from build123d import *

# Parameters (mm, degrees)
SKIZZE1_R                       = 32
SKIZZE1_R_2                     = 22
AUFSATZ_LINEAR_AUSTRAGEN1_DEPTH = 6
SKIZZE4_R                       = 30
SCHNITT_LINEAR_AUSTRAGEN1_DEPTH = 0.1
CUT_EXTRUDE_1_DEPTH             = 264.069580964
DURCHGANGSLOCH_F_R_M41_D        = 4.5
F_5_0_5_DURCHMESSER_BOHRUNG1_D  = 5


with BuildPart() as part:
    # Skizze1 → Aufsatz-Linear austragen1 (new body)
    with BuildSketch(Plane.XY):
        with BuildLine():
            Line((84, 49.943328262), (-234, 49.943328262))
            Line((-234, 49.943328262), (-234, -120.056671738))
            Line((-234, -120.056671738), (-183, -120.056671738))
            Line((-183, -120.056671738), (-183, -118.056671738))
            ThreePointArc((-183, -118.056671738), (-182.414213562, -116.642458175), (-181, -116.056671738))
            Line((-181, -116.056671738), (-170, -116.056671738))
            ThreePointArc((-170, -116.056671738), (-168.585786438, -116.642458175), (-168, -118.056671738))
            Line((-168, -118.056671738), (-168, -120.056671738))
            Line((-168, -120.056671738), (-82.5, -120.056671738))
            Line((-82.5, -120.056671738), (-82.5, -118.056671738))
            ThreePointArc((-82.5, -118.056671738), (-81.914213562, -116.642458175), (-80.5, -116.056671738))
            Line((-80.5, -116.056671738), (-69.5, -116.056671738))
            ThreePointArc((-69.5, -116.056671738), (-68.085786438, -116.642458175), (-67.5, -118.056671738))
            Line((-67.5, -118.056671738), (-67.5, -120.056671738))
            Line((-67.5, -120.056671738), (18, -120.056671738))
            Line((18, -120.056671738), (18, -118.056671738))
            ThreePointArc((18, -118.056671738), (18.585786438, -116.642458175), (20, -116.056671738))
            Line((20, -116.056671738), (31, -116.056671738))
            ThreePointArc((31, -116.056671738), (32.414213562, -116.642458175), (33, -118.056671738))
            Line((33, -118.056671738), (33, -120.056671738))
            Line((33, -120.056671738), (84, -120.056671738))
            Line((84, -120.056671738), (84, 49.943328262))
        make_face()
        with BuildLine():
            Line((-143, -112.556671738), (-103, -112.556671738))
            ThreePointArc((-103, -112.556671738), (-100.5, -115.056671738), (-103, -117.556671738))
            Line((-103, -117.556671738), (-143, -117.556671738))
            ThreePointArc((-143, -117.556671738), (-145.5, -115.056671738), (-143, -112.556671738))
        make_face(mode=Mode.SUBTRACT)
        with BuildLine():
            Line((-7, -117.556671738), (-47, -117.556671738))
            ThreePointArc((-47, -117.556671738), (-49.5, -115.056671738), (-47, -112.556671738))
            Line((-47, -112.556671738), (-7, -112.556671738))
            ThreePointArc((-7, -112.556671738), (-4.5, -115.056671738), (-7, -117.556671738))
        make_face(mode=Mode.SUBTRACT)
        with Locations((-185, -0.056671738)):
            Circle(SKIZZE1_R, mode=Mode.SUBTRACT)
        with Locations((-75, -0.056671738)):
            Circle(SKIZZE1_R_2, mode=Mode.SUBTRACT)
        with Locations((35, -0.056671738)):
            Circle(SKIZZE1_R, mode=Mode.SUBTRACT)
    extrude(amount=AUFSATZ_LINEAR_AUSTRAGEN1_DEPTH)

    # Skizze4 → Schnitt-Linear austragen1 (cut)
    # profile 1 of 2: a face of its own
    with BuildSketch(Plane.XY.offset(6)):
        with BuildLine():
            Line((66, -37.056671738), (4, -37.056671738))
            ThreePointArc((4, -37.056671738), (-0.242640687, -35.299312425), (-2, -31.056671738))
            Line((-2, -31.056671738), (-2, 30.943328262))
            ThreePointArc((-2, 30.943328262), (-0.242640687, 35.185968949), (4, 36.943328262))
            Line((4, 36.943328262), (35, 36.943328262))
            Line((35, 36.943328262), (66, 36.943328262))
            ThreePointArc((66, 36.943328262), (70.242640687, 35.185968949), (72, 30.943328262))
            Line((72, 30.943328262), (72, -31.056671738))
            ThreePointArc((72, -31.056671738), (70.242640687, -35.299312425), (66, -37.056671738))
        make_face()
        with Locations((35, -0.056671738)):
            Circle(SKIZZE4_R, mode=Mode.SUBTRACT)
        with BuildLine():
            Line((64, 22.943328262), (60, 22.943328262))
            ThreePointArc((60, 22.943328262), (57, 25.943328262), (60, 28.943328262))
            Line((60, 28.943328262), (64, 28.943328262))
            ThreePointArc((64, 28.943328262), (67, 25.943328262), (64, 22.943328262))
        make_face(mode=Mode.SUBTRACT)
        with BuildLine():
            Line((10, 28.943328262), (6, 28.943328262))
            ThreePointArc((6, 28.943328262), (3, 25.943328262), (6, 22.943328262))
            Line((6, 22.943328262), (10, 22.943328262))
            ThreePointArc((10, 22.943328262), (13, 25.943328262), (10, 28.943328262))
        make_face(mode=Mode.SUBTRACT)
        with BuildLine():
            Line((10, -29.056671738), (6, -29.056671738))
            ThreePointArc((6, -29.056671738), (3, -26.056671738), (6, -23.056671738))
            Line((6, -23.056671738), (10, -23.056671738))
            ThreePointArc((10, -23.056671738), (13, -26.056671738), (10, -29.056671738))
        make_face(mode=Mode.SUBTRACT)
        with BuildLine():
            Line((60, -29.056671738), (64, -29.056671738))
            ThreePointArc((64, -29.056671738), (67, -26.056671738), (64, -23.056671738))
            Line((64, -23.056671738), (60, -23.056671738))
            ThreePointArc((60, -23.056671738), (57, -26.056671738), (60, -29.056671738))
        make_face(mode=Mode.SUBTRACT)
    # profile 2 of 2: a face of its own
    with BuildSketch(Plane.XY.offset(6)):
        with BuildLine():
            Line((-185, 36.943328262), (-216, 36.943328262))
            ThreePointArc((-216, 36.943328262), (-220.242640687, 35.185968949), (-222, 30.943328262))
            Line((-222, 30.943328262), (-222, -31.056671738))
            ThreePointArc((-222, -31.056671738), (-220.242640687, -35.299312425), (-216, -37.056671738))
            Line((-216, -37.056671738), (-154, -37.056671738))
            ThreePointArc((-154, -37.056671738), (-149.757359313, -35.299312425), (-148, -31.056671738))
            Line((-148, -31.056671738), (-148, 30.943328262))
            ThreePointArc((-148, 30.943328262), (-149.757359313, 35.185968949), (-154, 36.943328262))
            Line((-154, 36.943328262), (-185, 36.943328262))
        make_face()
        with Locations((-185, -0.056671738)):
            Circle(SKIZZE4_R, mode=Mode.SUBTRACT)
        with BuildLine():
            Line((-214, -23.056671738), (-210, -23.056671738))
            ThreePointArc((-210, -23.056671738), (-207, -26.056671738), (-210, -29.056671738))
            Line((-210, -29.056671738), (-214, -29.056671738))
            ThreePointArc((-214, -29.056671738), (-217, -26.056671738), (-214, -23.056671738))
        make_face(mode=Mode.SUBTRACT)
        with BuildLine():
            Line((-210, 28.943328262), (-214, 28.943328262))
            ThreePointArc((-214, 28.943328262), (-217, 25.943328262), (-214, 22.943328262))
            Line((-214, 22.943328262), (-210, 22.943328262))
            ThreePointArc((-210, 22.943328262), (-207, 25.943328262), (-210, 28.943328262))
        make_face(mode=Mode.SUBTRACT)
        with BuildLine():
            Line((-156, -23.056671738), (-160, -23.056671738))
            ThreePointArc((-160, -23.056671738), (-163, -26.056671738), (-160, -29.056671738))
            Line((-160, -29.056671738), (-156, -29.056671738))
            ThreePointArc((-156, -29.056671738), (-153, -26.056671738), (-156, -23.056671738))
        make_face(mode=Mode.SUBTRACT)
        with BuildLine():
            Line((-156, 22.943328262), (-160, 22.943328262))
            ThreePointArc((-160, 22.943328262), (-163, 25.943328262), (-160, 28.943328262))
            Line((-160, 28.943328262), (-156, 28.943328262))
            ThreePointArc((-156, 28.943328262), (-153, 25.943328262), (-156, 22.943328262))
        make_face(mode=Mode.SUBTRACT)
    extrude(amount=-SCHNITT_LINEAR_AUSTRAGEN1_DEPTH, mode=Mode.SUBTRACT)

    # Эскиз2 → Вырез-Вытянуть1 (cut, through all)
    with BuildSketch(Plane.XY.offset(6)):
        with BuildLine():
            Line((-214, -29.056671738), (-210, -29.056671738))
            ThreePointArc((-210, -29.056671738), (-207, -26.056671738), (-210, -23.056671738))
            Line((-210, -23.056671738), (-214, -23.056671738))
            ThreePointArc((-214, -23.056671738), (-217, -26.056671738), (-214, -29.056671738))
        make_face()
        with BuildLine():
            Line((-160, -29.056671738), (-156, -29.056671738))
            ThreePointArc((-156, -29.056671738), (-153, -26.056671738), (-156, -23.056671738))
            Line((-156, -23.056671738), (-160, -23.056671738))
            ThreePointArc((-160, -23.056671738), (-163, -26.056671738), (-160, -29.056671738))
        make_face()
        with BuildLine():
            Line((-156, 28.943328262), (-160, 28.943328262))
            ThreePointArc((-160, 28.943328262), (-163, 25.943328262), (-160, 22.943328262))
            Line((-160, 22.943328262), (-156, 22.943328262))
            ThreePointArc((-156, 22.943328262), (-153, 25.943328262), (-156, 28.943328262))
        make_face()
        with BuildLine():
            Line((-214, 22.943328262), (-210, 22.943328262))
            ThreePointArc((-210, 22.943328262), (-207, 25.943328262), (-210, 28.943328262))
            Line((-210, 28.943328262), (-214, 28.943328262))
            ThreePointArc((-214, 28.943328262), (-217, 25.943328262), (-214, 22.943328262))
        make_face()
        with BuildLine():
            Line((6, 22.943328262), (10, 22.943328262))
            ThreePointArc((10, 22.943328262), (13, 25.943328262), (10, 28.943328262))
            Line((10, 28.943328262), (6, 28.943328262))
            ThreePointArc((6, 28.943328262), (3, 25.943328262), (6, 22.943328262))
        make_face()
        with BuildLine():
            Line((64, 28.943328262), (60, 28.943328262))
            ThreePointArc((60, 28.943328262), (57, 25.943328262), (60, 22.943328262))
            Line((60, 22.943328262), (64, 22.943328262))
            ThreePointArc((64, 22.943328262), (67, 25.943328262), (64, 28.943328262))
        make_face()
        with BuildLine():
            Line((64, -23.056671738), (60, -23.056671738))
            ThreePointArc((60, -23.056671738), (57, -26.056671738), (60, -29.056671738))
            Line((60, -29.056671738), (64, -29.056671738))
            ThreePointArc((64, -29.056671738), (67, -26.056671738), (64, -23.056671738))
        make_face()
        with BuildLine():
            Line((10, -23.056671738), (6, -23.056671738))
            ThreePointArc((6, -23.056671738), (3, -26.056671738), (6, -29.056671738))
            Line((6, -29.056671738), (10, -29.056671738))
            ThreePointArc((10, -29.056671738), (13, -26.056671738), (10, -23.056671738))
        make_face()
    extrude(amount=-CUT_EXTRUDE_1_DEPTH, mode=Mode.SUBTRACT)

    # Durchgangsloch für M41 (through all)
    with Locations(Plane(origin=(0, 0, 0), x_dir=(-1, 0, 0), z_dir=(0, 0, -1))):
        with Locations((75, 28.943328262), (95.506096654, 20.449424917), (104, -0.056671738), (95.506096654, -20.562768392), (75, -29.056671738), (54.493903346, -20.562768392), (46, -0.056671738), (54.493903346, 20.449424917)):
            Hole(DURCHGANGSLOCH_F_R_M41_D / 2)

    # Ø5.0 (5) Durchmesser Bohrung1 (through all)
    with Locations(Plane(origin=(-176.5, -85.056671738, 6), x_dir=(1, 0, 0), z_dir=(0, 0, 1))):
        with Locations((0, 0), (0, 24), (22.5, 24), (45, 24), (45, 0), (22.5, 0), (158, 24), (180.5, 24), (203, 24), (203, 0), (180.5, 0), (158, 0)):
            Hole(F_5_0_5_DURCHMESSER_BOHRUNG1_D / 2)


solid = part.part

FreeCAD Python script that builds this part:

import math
import FreeCAD as App
import Part
import Sketcher
Q = App.Units.Quantity

doc = App.newDocument("Part")
body = doc.addObject("PartDesign::Body", "Body")

# Sketch on XY plane
sketch1 = body.newObject("Sketcher::SketchObject", "Sketch")
sketch1.AttachmentSupport = (doc.getObject("XY_Plane"), [""])
sketch1.MapMode = "FlatFace"
sketch1.addGeometry([
    Part.LineSegment(App.Vector(84, 49.9, 0), App.Vector(-234, 49.9, 0)),  # 0
    Part.LineSegment(App.Vector(-234, 49.9, 0), App.Vector(-234, -120.1, 0)),  # 1
    Part.LineSegment(App.Vector(-234, -120.1, 0), App.Vector(-183, -120.1, 0)),  # 2
    Part.LineSegment(App.Vector(-183, -120.1, 0), App.Vector(-183, -118.1, 0)),  # 3
    Part.ArcOfCircle(Part.Circle(App.Vector(-181, -118.1, 0), App.Vector(0, 0, 1), 2), math.radians(90), math.radians(180)),  # 4
    Part.LineSegment(App.Vector(-181, -116.1, 0), App.Vector(-170, -116.1, 0)),  # 5
    Part.ArcOfCircle(Part.Circle(App.Vector(-170, -118.1, 0), App.Vector(0, 0, 1), 2), math.radians(0), math.radians(90)),  # 6
    Part.LineSegment(App.Vector(-168, -118.1, 0), App.Vector(-168, -120.1, 0)),  # 7
    Part.LineSegment(App.Vector(-168, -120.1, 0), App.Vector(-82.5, -120.1, 0)),  # 8
    Part.LineSegment(App.Vector(-82.5, -120.1, 0), App.Vector(-82.5, -118.1, 0)),  # 9
    Part.ArcOfCircle(Part.Circle(App.Vector(-80.5, -118.1, 0), App.Vector(0, 0, 1), 2), math.radians(90), math.radians(180)),  # 10
    Part.LineSegment(App.Vector(-80.5, -116.1, 0), App.Vector(-69.5, -116.1, 0)),  # 11
    Part.ArcOfCircle(Part.Circle(App.Vector(-69.5, -118.1, 0), App.Vector(0, 0, 1), 2), math.radians(0), math.radians(90)),  # 12
    Part.LineSegment(App.Vector(-67.5, -118.1, 0), App.Vector(-67.5, -120.1, 0)),  # 13
    Part.LineSegment(App.Vector(-67.5, -120.1, 0), App.Vector(18, -120.1, 0)),  # 14
    Part.LineSegment(App.Vector(18, -120.1, 0), App.Vector(18, -118.1, 0)),  # 15
    Part.ArcOfCircle(Part.Circle(App.Vector(20, -118.1, 0), App.Vector(0, 0, 1), 2), math.radians(90), math.radians(180)),  # 16
    Part.LineSegment(App.Vector(20, -116.1, 0), App.Vector(31, -116.1, 0)),  # 17
    Part.ArcOfCircle(Part.Circle(App.Vector(31, -118.1, 0), App.Vector(0, 0, 1), 2), math.radians(0), math.radians(90)),  # 18
    Part.LineSegment(App.Vector(33, -118.1, 0), App.Vector(33, -120.1, 0)),  # 19
    Part.LineSegment(App.Vector(33, -120.1, 0), App.Vector(84, -120.1, 0)),  # 20
    Part.LineSegment(App.Vector(84, -120.1, 0), App.Vector(84, 49.9, 0)),  # 21
    Part.ArcOfCircle(Part.Circle(App.Vector(-143, -115.1, 0), App.Vector(0, 0, 1), 2.5), math.radians(90), math.radians(270)),  # 22
    Part.LineSegment(App.Vector(-143, -112.6, 0), App.Vector(-103, -112.6, 0)),  # 23
    Part.ArcOfCircle(Part.Circle(App.Vector(-103, -115.1, 0), App.Vector(0, 0, 1), 2.5), math.radians(-90), math.radians(90)),  # 24
    Part.LineSegment(App.Vector(-103, -117.6, 0), App.Vector(-143, -117.6, 0)),  # 25
    Part.ArcOfCircle(Part.Circle(App.Vector(-7, -115.1, 0), App.Vector(0, 0, 1), 2.5), math.radians(-90), math.radians(90)),  # 26
    Part.LineSegment(App.Vector(-7, -117.6, 0), App.Vector(-47, -117.6, 0)),  # 27
    Part.ArcOfCircle(Part.Circle(App.Vector(-47, -115.1, 0), App.Vector(0, 0, 1), 2.5), math.radians(90), math.radians(270)),  # 28
    Part.LineSegment(App.Vector(-47, -112.6, 0), App.Vector(-7, -112.6, 0)),  # 29
    Part.Circle(App.Vector(-185, -0.1, 0), App.Vector(0, 0, 1), 32),  # 30
    Part.Circle(App.Vector(-75, -0.1, 0), App.Vector(0, 0, 1), 22),  # 31
    Part.Circle(App.Vector(35, -0.1, 0), App.Vector(0, 0, 1), 32),  # 32
], False)
sketch1.addConstraint([
    Sketcher.Constraint("Coincident", 0, 2, 1, 1),
    Sketcher.Constraint("Coincident", 1, 2, 2, 1),
    Sketcher.Constraint("Coincident", 2, 2, 3, 1),
    Sketcher.Constraint("Tangent", 3, 2, 4, 2),
    Sketcher.Constraint("Tangent", 4, 1, 5, 1),
    Sketcher.Constraint("Tangent", 5, 2, 6, 2),
    Sketcher.Constraint("Tangent", 6, 1, 7, 1),
    Sketcher.Constraint("Coincident", 7, 2, 8, 1),
    Sketcher.Constraint("Coincident", 8, 2, 9, 1),
    Sketcher.Constraint("Tangent", 9, 2, 10, 2),
    Sketcher.Constraint("Tangent", 10, 1, 11, 1),
    Sketcher.Constraint("Tangent", 11, 2, 12, 2),
    Sketcher.Constraint("Tangent", 12, 1, 13, 1),
    Sketcher.Constraint("Coincident", 13, 2, 14, 1),
    Sketcher.Constraint("Coincident", 14, 2, 15, 1),
    Sketcher.Constraint("Tangent", 15, 2, 16, 2),
    Sketcher.Constraint("Tangent", 16, 1, 17, 1),
    Sketcher.Constraint("Tangent", 17, 2, 18, 2),
    Sketcher.Constraint("Tangent", 18, 1, 19, 1),
    Sketcher.Constraint("Coincident", 19, 2, 20, 1),
    Sketcher.Constraint("Coincident", 20, 2, 21, 1),
    Sketcher.Constraint("Coincident", 21, 2, 0, 1),
    Sketcher.Constraint("Tangent", 22, 1, 23, 1),
    Sketcher.Constraint("Tangent", 23, 2, 24, 2),
    Sketcher.Constraint("Tangent", 24, 1, 25, 1),
    Sketcher.Constraint("Tangent", 25, 2, 22, 2),
    Sketcher.Constraint("Tangent", 26, 1, 27, 1),
    Sketcher.Constraint("Tangent", 27, 2, 28, 2),
    Sketcher.Constraint("Tangent", 28, 1, 29, 1),
    Sketcher.Constraint("Tangent", 29, 2, 26, 2),
    Sketcher.Constraint("Horizontal", 0),
    Sketcher.Constraint("Vertical", 1),
    Sketcher.Constraint("Horizontal", 2),
    Sketcher.Constraint("Vertical", 3),
    Sketcher.Constraint("Horizontal", 5),
    Sketcher.Constraint("Vertical", 7),
    Sketcher.Constraint("Horizontal", 8),
    Sketcher.Constraint("Vertical", 9),
    Sketcher.Constraint("Horizontal", 11),
    Sketcher.Constraint("Vertical", 13),
    Sketcher.Constraint("Horizontal", 14),
    Sketcher.Constraint("Vertical", 15),
    Sketcher.Constraint("Horizontal", 17),
    Sketcher.Constraint("Vertical", 19),
    Sketcher.Constraint("Horizontal", 20),
    Sketcher.Constraint("Vertical", 21),
    Sketcher.Constraint("Horizontal", 23),
    Sketcher.Constraint("Horizontal", 25),
    Sketcher.Constraint("Horizontal", 27),
    Sketcher.Constraint("Horizontal", 29),
    Sketcher.Constraint("Equal", 4, 6),
    Sketcher.Constraint("Equal", 6, 10),
    Sketcher.Constraint("Equal", 10, 12),
    Sketcher.Constraint("Equal", 12, 16),
    Sketcher.Constraint("Equal", 16, 18),
    Sketcher.Constraint("Equal", 24, 26),
    Sketcher.Constraint("Equal", 30, 32),
    Sketcher.Constraint("Horizontal", 6, 3, 10, 3),
    Sketcher.Constraint("Horizontal", 12, 3, 16, 3),
    Sketcher.Constraint("Horizontal", 24, 3, 26, 3),
    Sketcher.Constraint("Horizontal", 30, 3, 31, 3),
    Sketcher.Constraint("Horizontal", 31, 3, 32, 3),
    Sketcher.Constraint("Horizontal", 2, 2, 7, 2),
    Sketcher.Constraint("Horizontal", 8, 2, 13, 2),
    Sketcher.Constraint("Horizontal", 14, 2, 19, 2),
    Sketcher.Constraint("Equal", 5, 11),
    Sketcher.Constraint("Equal", 8, 14),
    Sketcher.Constraint("Equal", 11, 17),
    Sketcher.Constraint("Equal", 2, 20),
    Sketcher.Constraint("Equal", 25, 27),
    Sketcher.Constraint("Diameter", 30, Q("64 mm")),
    Sketcher.Constraint("Diameter", 31, Q("44 mm")),
    Sketcher.Constraint("Radius", 4, Q("2 mm")),
    Sketcher.Constraint("Radius", 22, Q("2.5 mm")),
    Sketcher.Constraint("DistanceX", 0, 2, 0, 1, Q("318 mm")),
    Sketcher.Constraint("DistanceX", 2, 1, 2, 2, Q("51 mm")),
    Sketcher.Constraint("DistanceX", 5, 1, 5, 2, Q("11 mm")),
    Sketcher.Constraint("DistanceX", 23, 1, 23, 2, Q("40 mm")),
    Sketcher.Constraint("DistanceY", 1, 2, 1, 1, Q("170 mm")),
    Sketcher.Constraint("DistanceY", 3, 1, 3, 2, Q("2 mm")),
    Sketcher.Constraint("DistanceX", 4, 3, -1, 1, Q("181 mm")),
    Sketcher.Constraint("DistanceX", 22, 3, -1, 1, Q("143 mm")),
    Sketcher.Constraint("DistanceX", 26, 3, -1, 1, Q("7 mm")),
    Sketcher.Constraint("DistanceX", 30, 3, -1, 1, Q("185 mm")),
    Sketcher.Constraint("DistanceX", 31, 3, -1, 1, Q("75 mm")),
    Sketcher.Constraint("DistanceX", -1, 1, 32, 3, Q("35 mm")),
    Sketcher.Constraint("DistanceY", 6, 3, 22, 3, Q("3 mm")),
    Sketcher.Constraint("DistanceY", 4, 3, 30, 3, Q("118 mm")),
    Sketcher.Constraint("DistanceY", 4, 3, -1, 1, Q("118.056672 mm")),
])
pad1 = body.newObject("PartDesign::Pad", "Pad")
pad1.Profile = sketch1
pad1.Length = 6

# Sketch on XY plane
sketch2 = body.newObject("Sketcher::SketchObject", "Sketch001")
sketch2.AttachmentSupport = (doc.getObject("XY_Plane"), [""])
sketch2.MapMode = "FlatFace"
sketch2.AttachmentOffset = App.Placement(App.Vector(0, 0, 6), App.Rotation())
sketch2.addGeometry([
    Part.LineSegment(App.Vector(4, -37.1, 0), App.Vector(66, -37.1, 0)),  # 0
    Part.ArcOfCircle(Part.Circle(App.Vector(66, -31.1, 0), App.Vector(0, 0, 1), 6), math.radians(-90), math.radians(0)),  # 1
    Part.LineSegment(App.Vector(72, -31.1, 0), App.Vector(72, 30.9, 0)),  # 2
    Part.ArcOfCircle(Part.Circle(App.Vector(66, 30.9, 0), App.Vector(0, 0, 1), 6), math.radians(0), math.radians(90)),  # 3
    Part.LineSegment(App.Vector(66, 36.9, 0), App.Vector(4, 36.9, 0)),  # 4
    Part.ArcOfCircle(Part.Circle(App.Vector(4, 30.9, 0), App.Vector(0, 0, 1), 6), math.radians(90), math.radians(180)),  # 5
    Part.LineSegment(App.Vector(-2, 30.9, 0), App.Vector(-2, -31.1, 0)),  # 6
    Part.ArcOfCircle(Part.Circle(App.Vector(4, -31.1, 0), App.Vector(0, 0, 1), 6), math.radians(180), math.radians(270)),  # 7
    Part.ArcOfCircle(Part.Circle(App.Vector(60, -26.1, 0), App.Vector(0, 0, 1), 3), math.radians(90), math.radians(270)),  # 8
    Part.LineSegment(App.Vector(60, -23.1, 0), App.Vector(64, -23.1, 0)),  # 9
    Part.ArcOfCircle(Part.Circle(App.Vector(64, -26.1, 0), App.Vector(0, 0, 1), 3), math.radians(-90), math.radians(90)),  # 10
    Part.LineSegment(App.Vector(64, -29.1, 0), App.Vector(60, -29.1, 0)),  # 11
    Part.LineSegment(App.Vector(10, -29.1, 0), App.Vector(6, -29.1, 0)),  # 12
    Part.ArcOfCircle(Part.Circle(App.Vector(6, -26.1, 0), App.Vector(0, 0, 1), 3), math.radians(90), math.radians(270)),  # 13
    Part.LineSegment(App.Vector(6, -23.1, 0), App.Vector(10, -23.1, 0)),  # 14
    Part.ArcOfCircle(Part.Circle(App.Vector(10, -26.1, 0), App.Vector(0, 0, 1), 3), math.radians(-90), math.radians(90)),  # 15
    Part.LineSegment(App.Vector(64, 22.9, 0), App.Vector(60, 22.9, 0)),  # 16
    Part.ArcOfCircle(Part.Circle(App.Vector(60, 25.9, 0), App.Vector(0, 0, 1), 3), math.radians(90), math.radians(270)),  # 17
    Part.LineSegment(App.Vector(60, 28.9, 0), App.Vector(64, 28.9, 0)),  # 18
    Part.ArcOfCircle(Part.Circle(App.Vector(64, 25.9, 0), App.Vector(0, 0, 1), 3), math.radians(-90), math.radians(90)),  # 19
    Part.Circle(App.Vector(35, -0.1, 0), App.Vector(0, 0, 1), 30),  # 20
    Part.ArcOfCircle(Part.Circle(App.Vector(10, 25.9, 0), App.Vector(0, 0, 1), 3), math.radians(-90), math.radians(90)),  # 21
    Part.LineSegment(App.Vector(10, 22.9, 0), App.Vector(6, 22.9, 0)),  # 22
    Part.ArcOfCircle(Part.Circle(App.Vector(6, 25.9, 0), App.Vector(0, 0, 1), 3), math.radians(90), math.radians(270)),  # 23
    Part.LineSegment(App.Vector(6, 28.9, 0), App.Vector(10, 28.9, 0)),  # 24
    Part.ArcOfCircle(Part.Circle(App.Vector(-216, 30.9, 0), App.Vector(0, 0, 1), 6), math.radians(90), math.radians(180)),  # 25
    Part.LineSegment(App.Vector(-222, 30.9, 0), App.Vector(-222, -31.1, 0)),  # 26
    Part.ArcOfCircle(Part.Circle(App.Vector(-216, -31.1, 0), App.Vector(0, 0, 1), 6), math.radians(180), math.radians(270)),  # 27
    Part.LineSegment(App.Vector(-216, -37.1, 0), App.Vector(-154, -37.1, 0)),  # 28
    Part.ArcOfCircle(Part.Circle(App.Vector(-154, -31.1, 0), App.Vector(0, 0, 1), 6), math.radians(-90), math.radians(0)),  # 29
    Part.LineSegment(App.Vector(-148, -31.1, 0), App.Vector(-148, 30.9, 0)),  # 30
    Part.ArcOfCircle(Part.Circle(App.Vector(-154, 30.9, 0), App.Vector(0, 0, 1), 6), math.radians(0), math.radians(90)),  # 31
    Part.LineSegment(App.Vector(-154, 36.9, 0), App.Vector(-216, 36.9, 0)),  # 32
    Part.ArcOfCircle(Part.Circle(App.Vector(-214, -26.1, 0), App.Vector(0, 0, 1), 3), math.radians(90), math.radians(270)),  # 33
    Part.LineSegment(App.Vector(-214, -23.1, 0), App.Vector(-210, -23.1, 0)),  # 34
    Part.ArcOfCircle(Part.Circle(App.Vector(-210, -26.1, 0), App.Vector(0, 0, 1), 3), math.radians(-90), math.radians(90)),  # 35
    Part.LineSegment(App.Vector(-210, -29.1, 0), App.Vector(-214, -29.1, 0)),  # 36
    Part.LineSegment(App.Vector(-160, -23.1, 0), App.Vector(-156, -23.1, 0)),  # 37
    Part.ArcOfCircle(Part.Circle(App.Vector(-156, -26.1, 0), App.Vector(0, 0, 1), 3), math.radians(-90), math.radians(90)),  # 38
    Part.LineSegment(App.Vector(-156, -29.1, 0), App.Vector(-160, -29.1, 0)),  # 39
    Part.ArcOfCircle(Part.Circle(App.Vector(-160, -26.1, 0), App.Vector(0, 0, 1), 3), math.radians(90), math.radians(270)),  # 40
    Part.LineSegment(App.Vector(-214, 28.9, 0), App.Vector(-210, 28.9, 0)),  # 41
    Part.ArcOfCircle(Part.Circle(App.Vector(-210, 25.9, 0), App.Vector(0, 0, 1), 3), math.radians(-90), math.radians(90)),  # 42
    Part.LineSegment(App.Vector(-210, 22.9, 0), App.Vector(-214, 22.9, 0)),  # 43
    Part.ArcOfCircle(Part.Circle(App.Vector(-214, 25.9, 0), App.Vector(0, 0, 1), 3), math.radians(90), math.radians(270)),  # 44
    Part.Circle(App.Vector(-185, -0.1, 0), App.Vector(0, 0, 1), 30),  # 45
    Part.ArcOfCircle(Part.Circle(App.Vector(-156, 25.9, 0), App.Vector(0, 0, 1), 3), math.radians(-90), math.radians(90)),  # 46
    Part.LineSegment(App.Vector(-156, 22.9, 0), App.Vector(-160, 22.9, 0)),  # 47
    Part.ArcOfCircle(Part.Circle(App.Vector(-160, 25.9, 0), App.Vector(0, 0, 1), 3), math.radians(90), math.radians(270)),  # 48
    Part.LineSegment(App.Vector(-160, 28.9, 0), App.Vector(-156, 28.9, 0)),  # 49
], False)
sketch2.addConstraint([
    Sketcher.Constraint("Tangent", 0, 2, 1, 1),
    Sketcher.Constraint("Tangent", 1, 2, 2, 1),
    Sketcher.Constraint("Tangent", 2, 2, 3, 1),
    Sketcher.Constraint("Tangent", 3, 2, 4, 1),
    Sketcher.Constraint("Tangent", 4, 2, 5, 1),
    Sketcher.Constraint("Tangent", 5, 2, 6, 1),
    Sketcher.Constraint("Tangent", 6, 2, 7, 1),
    Sketcher.Constraint("Tangent", 7, 2, 0, 1),
    Sketcher.Constraint("Tangent", 8, 1, 9, 1),
    Sketcher.Constraint("Tangent", 9, 2, 10, 2),
    Sketcher.Constraint("Tangent", 10, 1, 11, 1),
    Sketcher.Constraint("Tangent", 11, 2, 8, 2),
    Sketcher.Constraint("Tangent", 12, 2, 13, 2),
    Sketcher.Constraint("Tangent", 13, 1, 14, 1),
    Sketcher.Constraint("Tangent", 14, 2, 15, 2),
    Sketcher.Constraint("Tangent", 15, 1, 12, 1),
    Sketcher.Constraint("Tangent", 16, 2, 17, 2),
    Sketcher.Constraint("Tangent", 17, 1, 18, 1),
    Sketcher.Constraint("Tangent", 18, 2, 19, 2),
    Sketcher.Constraint("Tangent", 19, 1, 16, 1),
    Sketcher.Constraint("Tangent", 21, 1, 22, 1),
    Sketcher.Constraint("Tangent", 22, 2, 23, 2),
    Sketcher.Constraint("Tangent", 23, 1, 24, 1),
    Sketcher.Constraint("Tangent", 24, 2, 21, 2),
    Sketcher.Constraint("Tangent", 25, 2, 26, 1),
    Sketcher.Constraint("Tangent", 26, 2, 27, 1),
    Sketcher.Constraint("Tangent", 27, 2, 28, 1),
    Sketcher.Constraint("Tangent", 28, 2, 29, 1),
    Sketcher.Constraint("Tangent", 29, 2, 30, 1),
    Sketcher.Constraint("Tangent", 30, 2, 31, 1),
    Sketcher.Constraint("Tangent", 31, 2, 32, 1),
    Sketcher.Constraint("Tangent", 32, 2, 25, 1),
    Sketcher.Constraint("Tangent", 33, 1, 34, 1),
    Sketcher.Constraint("Tangent", 34, 2, 35, 2),
    Sketcher.Constraint("Tangent", 35, 1, 36, 1),
    Sketcher.Constraint("Tangent", 36, 2, 33, 2),
    Sketcher.Constraint("Tangent", 37, 2, 38, 2),
    Sketcher.Constraint("Tangent", 38, 1, 39, 1),
    Sketcher.Constraint("Tangent", 39, 2, 40, 2),
    Sketcher.Constraint("Tangent", 40, 1, 37, 1),
    Sketcher.Constraint("Tangent", 41, 2, 42, 2),
    Sketcher.Constraint("Tangent", 42, 1, 43, 1),
    Sketcher.Constraint("Tangent", 43, 2, 44, 2),
    Sketcher.Constraint("Tangent", 44, 1, 41, 1),
    Sketcher.Constraint("Tangent", 46, 1, 47, 1),
    Sketcher.Constraint("Tangent", 47, 2, 48, 2),
    Sketcher.Constraint("Tangent", 48, 1, 49, 1),
    Sketcher.Constraint("Tangent", 49, 2, 46, 2),
    Sketcher.Constraint("Horizontal", 0),
    Sketcher.Constraint("Vertical", 2),
    Sketcher.Constraint("Horizontal", 4),
    Sketcher.Constraint("Vertical", 6),
    Sketcher.Constraint("Horizontal", 9),
    Sketcher.Constraint("Horizontal", 11),
    Sketcher.Constraint("Horizontal", 12),
    Sketcher.Constraint("Horizontal", 14),
    Sketcher.Constraint("Horizontal", 16),
    Sketcher.Constraint("Horizontal", 18),
    Sketcher.Constraint("Horizontal", 22),
    Sketcher.Constraint("Horizontal", 24),
    Sketcher.Constraint("Vertical", 26),
    Sketcher.Constraint("Horizontal", 28),
    Sketcher.Constraint("Vertical", 30),
    Sketcher.Constraint("Horizontal", 32),
    Sketcher.Constraint("Horizontal", 34),
    Sketcher.Constraint("Horizontal", 36),
    Sketcher.Constraint("Horizontal", 37),
    Sketcher.Constraint("Horizontal", 39),
    Sketcher.Constraint("Horizontal", 41),
    Sketcher.Constraint("Horizontal", 43),
    Sketcher.Constraint("Horizontal", 47),
    Sketcher.Constraint("Horizontal", 49),
    Sketcher.Constraint("Equal", 1, 3),
    Sketcher.Constraint("Equal", 3, 5),
    Sketcher.Constraint("Equal", 5, 7),
    Sketcher.Constraint("Equal", 10, 13),
    Sketcher.Constraint("Equal", 15, 17),
    Sketcher.Constraint("Equal", 19, 21),
    Sketcher.Constraint("Equal", 7, 25),
    Sketcher.Constraint("Equal", 25, 27),
    Sketcher.Constraint("Equal", 27, 29),
    Sketcher.Constraint("Equal", 29, 31),
    Sketcher.Constraint("Equal", 23, 33),
    Sketcher.Constraint("Equal", 35, 38),
    Sketcher.Constraint("Equal", 40, 42),
    Sketcher.Constraint("Equal", 20, 45),
    Sketcher.Constraint("Equal", 44, 46),
    Sketcher.Constraint("Horizontal", 10, 3, 13, 3),
    Sketcher.Constraint("Horizontal", 19, 3, 21, 3),
    Sketcher.Constraint("Horizontal", 5, 3, 25, 3),
    Sketcher.Constraint("Horizontal", 7, 3, 27, 3),
    Sketcher.Constraint("Horizontal", 15, 3, 33, 3),
    Sketcher.Constraint("Horizontal", 35, 3, 38, 3),
    Sketcher.Constraint("Horizontal", 23, 3, 42, 3),
    Sketcher.Constraint("Horizontal", 20, 3, 45, 3),
    Sketcher.Constraint("Horizontal", 44, 3, 46, 3),
    Sketcher.Constraint("Vertical", 8, 3, 17, 3),
    Sketcher.Constraint("Vertical", 10, 3, 19, 3),
    Sketcher.Constraint("Vertical", 15, 3, 21, 3),
    Sketcher.Constraint("Vertical", 13, 3, 23, 3),
    Sketcher.Constraint("Vertical", 35, 3, 42, 3),
    Sketcher.Constraint("Vertical", 33, 3, 44, 3),
    Sketcher.Constraint("Vertical", 38, 3, 46, 3),
    Sketcher.Constraint("Vertical", 40, 3, 48, 3),
    Sketcher.Constraint("Equal", 11, 12),
    Sketcher.Constraint("Equal", 4, 28),
    Sketcher.Constraint("Equal", 24, 34),
    Sketcher.Constraint("Equal", 36, 37),
    Sketcher.Constraint("Equal", 32, 2),
    Sketcher.Constraint("Diameter", 20, Q("60 mm")),
    Sketcher.Constraint("Radius", 1, Q("6 mm")),
    Sketcher.Constraint("Radius", 8, Q("3 mm")),
    Sketcher.Constraint("DistanceX", 0, 1, 0, 2, Q("62 mm")),
    Sketcher.Constraint("DistanceX", 9, 1, 9, 2, Q("4 mm")),
    Sketcher.Constraint("DistanceX", -1, 1, 1, 3, Q("66 mm")),
    Sketcher.Constraint("DistanceX", -1, 1, 8, 3, Q("60 mm")),
    Sketcher.Constraint("DistanceX", -1, 1, 13, 3, Q("6 mm")),
    Sketcher.Constraint("DistanceX", -1, 1, 20, 3, Q("35 mm")),
    Sketcher.Constraint("DistanceX", 25, 3, -1, 1, Q("216 mm")),
    Sketcher.Constraint("DistanceX", 33, 3, -1, 1, Q("214 mm")),
    Sketcher.Constraint("DistanceX", 38, 3, -1, 1, Q("156 mm")),
    Sketcher.Constraint("DistanceX", 45, 3, -1, 1, Q("185 mm")),
    Sketcher.Constraint("DistanceY", 1, 3, -1, 1, Q("31.056672 mm")),
    Sketcher.Constraint("DistanceY", 8, 3, -1, 1, Q("26.056672 mm")),
    Sketcher.Constraint("DistanceY", -1, 1, 17, 3, Q("25.943328 mm")),
    Sketcher.Constraint("DistanceY", 20, 3, -1, 1, Q("0.056672 mm")),
])
pocket1 = body.newObject("PartDesign::Pocket", "Pocket")
pocket1.Profile = sketch2
pocket1.Length = 0.1

# Sketch on XY plane
sketch3 = body.newObject("Sketcher::SketchObject", "Sketch002")
sketch3.AttachmentSupport = (doc.getObject("XY_Plane"), [""])
sketch3.MapMode = "FlatFace"
sketch3.AttachmentOffset = App.Placement(App.Vector(0, 0, 6), App.Rotation())
sketch3.addGeometry([
    Part.LineSegment(App.Vector(-214, -29.1, 0), App.Vector(-210, -29.1, 0)),  # 0
    Part.ArcOfCircle(Part.Circle(App.Vector(-210, -26.1, 0), App.Vector(0, 0, 1), 3), math.radians(-90), math.radians(90)),  # 1
    Part.LineSegment(App.Vector(-210, -23.1, 0), App.Vector(-214, -23.1, 0)),  # 2
    Part.ArcOfCircle(Part.Circle(App.Vector(-214, -26.1, 0), App.Vector(0, 0, 1), 3), math.radians(90), math.radians(270)),  # 3
    Part.LineSegment(App.Vector(-160, -29.1, 0), App.Vector(-156, -29.1, 0)),  # 4
    Part.ArcOfCircle(Part.Circle(App.Vector(-156, -26.1, 0), App.Vector(0, 0, 1), 3), math.radians(-90), math.radians(90)),  # 5
    Part.LineSegment(App.Vector(-156, -23.1, 0), App.Vector(-160, -23.1, 0)),  # 6
    Part.ArcOfCircle(Part.Circle(App.Vector(-160, -26.1, 0), App.Vector(0, 0, 1), 3), math.radians(90), math.radians(270)),  # 7
    Part.LineSegment(App.Vector(-156, 28.9, 0), App.Vector(-160, 28.9, 0)),  # 8
    Part.ArcOfCircle(Part.Circle(App.Vector(-160, 25.9, 0), App.Vector(0, 0, 1), 3), math.radians(90), math.radians(270)),  # 9
    Part.LineSegment(App.Vector(-160, 22.9, 0), App.Vector(-156, 22.9, 0)),  # 10
    Part.ArcOfCircle(Part.Circle(App.Vector(-156, 25.9, 0), App.Vector(0, 0, 1), 3), math.radians(-90), math.radians(90)),  # 11
    Part.LineSegment(App.Vector(-214, 22.9, 0), App.Vector(-210, 22.9, 0)),  # 12
    Part.ArcOfCircle(Part.Circle(App.Vector(-210, 25.9, 0), App.Vector(0, 0, 1), 3), math.radians(-90), math.radians(90)),  # 13
    Part.LineSegment(App.Vector(-210, 28.9, 0), App.Vector(-214, 28.9, 0)),  # 14
    Part.ArcOfCircle(Part.Circle(App.Vector(-214, 25.9, 0), App.Vector(0, 0, 1), 3), math.radians(90), math.radians(270)),  # 15
    Part.LineSegment(App.Vector(6, 22.9, 0), App.Vector(10, 22.9, 0)),  # 16
    Part.ArcOfCircle(Part.Circle(App.Vector(10, 25.9, 0), App.Vector(0, 0, 1), 3), math.radians(-90), math.radians(90)),  # 17
    Part.LineSegment(App.Vector(10, 28.9, 0), App.Vector(6, 28.9, 0)),  # 18
    Part.ArcOfCircle(Part.Circle(App.Vector(6, 25.9, 0), App.Vector(0, 0, 1), 3), math.radians(90), math.radians(270)),  # 19
    Part.LineSegment(App.Vector(64, 28.9, 0), App.Vector(60, 28.9, 0)),  # 20
    Part.ArcOfCircle(Part.Circle(App.Vector(60, 25.9, 0), App.Vector(0, 0, 1), 3), math.radians(90), math.radians(270)),  # 21
    Part.LineSegment(App.Vector(60, 22.9, 0), App.Vector(64, 22.9, 0)),  # 22
    Part.ArcOfCircle(Part.Circle(App.Vector(64, 25.9, 0), App.Vector(0, 0, 1), 3), math.radians(-90), math.radians(90)),  # 23
    Part.LineSegment(App.Vector(64, -23.1, 0), App.Vector(60, -23.1, 0)),  # 24
    Part.ArcOfCircle(Part.Circle(App.Vector(60, -26.1, 0), App.Vector(0, 0, 1), 3), math.radians(90), math.radians(270)),  # 25
    Part.LineSegment(App.Vector(60, -29.1, 0), App.Vector(64, -29.1, 0)),  # 26
    Part.ArcOfCircle(Part.Circle(App.Vector(64, -26.1, 0), App.Vector(0, 0, 1), 3), math.radians(-90), math.radians(90)),  # 27
    Part.LineSegment(App.Vector(10, -23.1, 0), App.Vector(6, -23.1, 0)),  # 28
    Part.ArcOfCircle(Part.Circle(App.Vector(6, -26.1, 0), App.Vector(0, 0, 1), 3), math.radians(90), math.radians(270)),  # 29
    Part.LineSegment(App.Vector(6, -29.1, 0), App.Vector(10, -29.1, 0)),  # 30
    Part.ArcOfCircle(Part.Circle(App.Vector(10, -26.1, 0), App.Vector(0, 0, 1), 3), math.radians(-90), math.radians(90)),  # 31
], False)
sketch3.addConstraint([
    Sketcher.Constraint("Tangent", 0, 2, 1, 1),
    Sketcher.Constraint("Tangent", 1, 2, 2, 1),
    Sketcher.Constraint("Tangent", 2, 2, 3, 1),
    Sketcher.Constraint("Tangent", 3, 2, 0, 1),
    Sketcher.Constraint("Tangent", 4, 2, 5, 1),
    Sketcher.Constraint("Tangent", 5, 2, 6, 1),
    Sketcher.Constraint("Tangent", 6, 2, 7, 1),
    Sketcher.Constraint("Tangent", 7, 2, 4, 1),
    Sketcher.Constraint("Tangent", 8, 2, 9, 1),
    Sketcher.Constraint("Tangent", 9, 2, 10, 1),
    Sketcher.Constraint("Tangent", 10, 2, 11, 1),
    Sketcher.Constraint("Tangent", 11, 2, 8, 1),
    Sketcher.Constraint("Tangent", 12, 2, 13, 1),
    Sketcher.Constraint("Tangent", 13, 2, 14, 1),
    Sketcher.Constraint("Tangent", 14, 2, 15, 1),
    Sketcher.Constraint("Tangent", 15, 2, 12, 1),
    Sketcher.Constraint("Tangent", 16, 2, 17, 1),
    Sketcher.Constraint("Tangent", 17, 2, 18, 1),
    Sketcher.Constraint("Tangent", 18, 2, 19, 1),
    Sketcher.Constraint("Tangent", 19, 2, 16, 1),
    Sketcher.Constraint("Tangent", 20, 2, 21, 1),
    Sketcher.Constraint("Tangent", 21, 2, 22, 1),
    Sketcher.Constraint("Tangent", 22, 2, 23, 1),
    Sketcher.Constraint("Tangent", 23, 2, 20, 1),
    Sketcher.Constraint("Tangent", 24, 2, 25, 1),
    Sketcher.Constraint("Tangent", 25, 2, 26, 1),
    Sketcher.Constraint("Tangent", 26, 2, 27, 1),
    Sketcher.Constraint("Tangent", 27, 2, 24, 1),
    Sketcher.Constraint("Tangent", 28, 2, 29, 1),
    Sketcher.Constraint("Tangent", 29, 2, 30, 1),
    Sketcher.Constraint("Tangent", 30, 2, 31, 1),
    Sketcher.Constraint("Tangent", 31, 2, 28, 1),
    Sketcher.Constraint("Horizontal", 0),
    Sketcher.Constraint("Horizontal", 2),
    Sketcher.Constraint("Horizontal", 4),
    Sketcher.Constraint("Horizontal", 6),
    Sketcher.Constraint("Horizontal", 8),
    Sketcher.Constraint("Horizontal", 10),
    Sketcher.Constraint("Horizontal", 12),
    Sketcher.Constraint("Horizontal", 14),
    Sketcher.Constraint("Horizontal", 16),
    Sketcher.Constraint("Horizontal", 18),
    Sketcher.Constraint("Horizontal", 20),
    Sketcher.Constraint("Horizontal", 22),
    Sketcher.Constraint("Horizontal", 24),
    Sketcher.Constraint("Horizontal", 26),
    Sketcher.Constraint("Horizontal", 28),
    Sketcher.Constraint("Horizontal", 30),
    Sketcher.Constraint("Equal", 3, 5),
    Sketcher.Constraint("Equal", 7, 9),
    Sketcher.Constraint("Equal", 11, 13),
    Sketcher.Constraint("Equal", 15, 17),
    Sketcher.Constraint("Equal", 19, 21),
    Sketcher.Constraint("Equal", 23, 25),
    Sketcher.Constraint("Equal", 27, 29),
    Sketcher.Constraint("Horizontal", 3, 3, 5, 3),
    Sketcher.Constraint("Horizontal", 11, 3, 13, 3),
    Sketcher.Constraint("Horizontal", 15, 3, 17, 3),
    Sketcher.Constraint("Horizontal", 19, 3, 21, 3),
    Sketcher.Constraint("Horizontal", 7, 3, 25, 3),
    Sketcher.Constraint("Horizontal", 27, 3, 29, 3),
    Sketcher.Constraint("Vertical", 7, 3, 9, 3),
    Sketcher.Constraint("Vertical", 5, 3, 11, 3),
    Sketcher.Constraint("Vertical", 1, 3, 13, 3),
    Sketcher.Constraint("Vertical", 3, 3, 15, 3),
    Sketcher.Constraint("Vertical", 21, 3, 25, 3),
    Sketcher.Constraint("Vertical", 23, 3, 27, 3),
    Sketcher.Constraint("Vertical", 19, 3, 29, 3),
    Sketcher.Constraint("Vertical", 17, 3, 31, 3),
    Sketcher.Constraint("Equal", 2, 4),
    Sketcher.Constraint("Equal", 14, 16),
    Sketcher.Constraint("Equal", 18, 20),
    Sketcher.Constraint("Radius", 1, Q("3 mm")),
    Sketcher.Constraint("DistanceX", 0, 1, 0, 2, Q("4 mm")),
    Sketcher.Constraint("DistanceX", 1, 3, -1, 1, Q("210 mm")),
    Sketcher.Constraint("DistanceX", 5, 3, -1, 1, Q("156 mm")),
    Sketcher.Constraint("DistanceX", -1, 1, 17, 3, Q("10 mm")),
    Sketcher.Constraint("DistanceX", -1, 1, 21, 3, Q("60 mm")),
    Sketcher.Constraint("DistanceY", 7, 3, 9, 3, Q("52 mm")),
    Sketcher.Constraint("DistanceY", 1, 3, -1, 1, Q("26.056672 mm")),
])
pocket2 = body.newObject("PartDesign::Pocket", "Pocket001")
pocket2.Profile = sketch3
pocket2.Type = "ThroughAll"

# Sketch on XY plane
sketch4 = body.newObject("Sketcher::SketchObject", "Sketch003")
sketch4.AttachmentSupport = (doc.getObject("XY_Plane"), [""])
sketch4.MapMode = "FlatFace"
sketch4.addGeometry([
    Part.Circle(App.Vector(-75, 28.9, 0), App.Vector(0, 0, 1), 2.2),  # 0
    Part.Circle(App.Vector(-95.5, 20.4, 0), App.Vector(0, 0, 1), 2.2),  # 1
    Part.Circle(App.Vector(-104, -0.1, 0), App.Vector(0, 0, 1), 2.2),  # 2
    Part.Circle(App.Vector(-95.5, -20.6, 0), App.Vector(0, 0, 1), 2.2),  # 3
    Part.Circle(App.Vector(-75, -29.1, 0), App.Vector(0, 0, 1), 2.2),  # 4
    Part.Circle(App.Vector(-54.5, -20.6, 0), App.Vector(0, 0, 1), 2.2),  # 5
    Part.Circle(App.Vector(-46, -0.1, 0), App.Vector(0, 0, 1), 2.2),  # 6
    Part.Circle(App.Vector(-54.5, 20.4, 0), App.Vector(0, 0, 1), 2.2),  # 7
], False)
sketch4.addConstraint([
    Sketcher.Constraint("Equal", 0, 1),
    Sketcher.Constraint("Equal", 1, 2),
    Sketcher.Constraint("Equal", 2, 3),
    Sketcher.Constraint("Equal", 3, 4),
    Sketcher.Constraint("Equal", 4, 5),
    Sketcher.Constraint("Equal", 5, 6),
    Sketcher.Constraint("Equal", 6, 7),
    Sketcher.Constraint("Horizontal", 3, 3, 5, 3),
    Sketcher.Constraint("Horizontal", 2, 3, 6, 3),
    Sketcher.Constraint("Horizontal", 1, 3, 7, 3),
    Sketcher.Constraint("Vertical", 1, 3, 3, 3),
    Sketcher.Constraint("Vertical", 0, 3, 4, 3),
    Sketcher.Constraint("Vertical", 5, 3, 7, 3),
    Sketcher.Constraint("Diameter", 0, Q("4.5 mm")),
    Sketcher.Constraint("DistanceX", 0, 3, -1, 1, Q("75 mm")),
    Sketcher.Constraint("DistanceX", 2, 3, -1, 1, Q("104 mm")),
    Sketcher.Constraint("DistanceX", 6, 3, -1, 1, Q("46 mm")),
    Sketcher.Constraint("DistanceY", 2, 3, 0, 3, Q("29 mm")),
    Sketcher.Constraint("DistanceY", 4, 3, 2, 3, Q("29 mm")),
    Sketcher.Constraint("DistanceY", -1, 1, 0, 3, Q("28.943328 mm")),
    Sketcher.Constraint("DistanceY", 3, 3, -1, 1, Q("20.562768 mm")),
    Sketcher.Constraint("DistanceX", 1, 3, -1, 1, Q("95.506097 mm")),
    Sketcher.Constraint("DistanceY", -1, 1, 1, 3, Q("20.449425 mm")),
    Sketcher.Constraint("DistanceX", 5, 3, -1, 1, Q("54.493903 mm")),
])
doc.recompute()
hole = body.newObject("PartDesign::Hole", "Hole")
hole.Profile = sketch4
hole.ThreadType = "None"
hole.Diameter = 4.5
hole.DepthType = "ThroughAll"
hole.Reversed = True

# Sketch on XY plane
sketch5 = body.newObject("Sketcher::SketchObject", "Sketch004")
sketch5.AttachmentSupport = (doc.getObject("XY_Plane"), [""])
sketch5.MapMode = "FlatFace"
sketch5.AttachmentOffset = App.Placement(App.Vector(0, 0, 6), App.Rotation())
sketch5.addGeometry([
    Part.Circle(App.Vector(-176.5, -85.1, 0), App.Vector(0, 0, 1), 2.5),  # 0
    Part.Circle(App.Vector(-176.5, -61.1, 0), App.Vector(0, 0, 1), 2.5),  # 1
    Part.Circle(App.Vector(-154, -61.1, 0), App.Vector(0, 0, 1), 2.5),  # 2
    Part.Circle(App.Vector(-131.5, -61.1, 0), App.Vector(0, 0, 1), 2.5),  # 3
    Part.Circle(App.Vector(-131.5, -85.1, 0), App.Vector(0, 0, 1), 2.5),  # 4
    Part.Circle(App.Vector(-154, -85.1, 0), App.Vector(0, 0, 1), 2.5),  # 5
    Part.Circle(App.Vector(-18.5, -61.1, 0), App.Vector(0, 0, 1), 2.5),  # 6
    Part.Circle(App.Vector(4, -61.1, 0), App.Vector(0, 0, 1), 2.5),  # 7
    Part.Circle(App.Vector(26.5, -61.1, 0), App.Vector(0, 0, 1), 2.5),  # 8
    Part.Circle(App.Vector(26.5, -85.1, 0), App.Vector(0, 0, 1), 2.5),  # 9
    Part.Circle(App.Vector(4, -85.1, 0), App.Vector(0, 0, 1), 2.5),  # 10
    Part.Circle(App.Vector(-18.5, -85.1, 0), App.Vector(0, 0, 1), 2.5),  # 11
], False)
sketch5.addConstraint([
    Sketcher.Constraint("Equal", 0, 1),
    Sketcher.Constraint("Equal", 1, 2),
    Sketcher.Constraint("Equal", 2, 3),
    Sketcher.Constraint("Equal", 3, 4),
    Sketcher.Constraint("Equal", 4, 5),
    Sketcher.Constraint("Equal", 5, 6),
    Sketcher.Constraint("Equal", 6, 7),
    Sketcher.Constraint("Equal", 7, 8),
    Sketcher.Constraint("Equal", 8, 9),
    Sketcher.Constraint("Equal", 9, 10),
    Sketcher.Constraint("Equal", 10, 11),
    Sketcher.Constraint("Horizontal", 1, 3, 2, 3),
    Sketcher.Constraint("Horizontal", 2, 3, 3, 3),
    Sketcher.Constraint("Horizontal", 0, 3, 4, 3),
    Sketcher.Constraint("Horizontal", 4, 3, 5, 3),
    Sketcher.Constraint("Horizontal", 3, 3, 6, 3),
    Sketcher.Constraint("Horizontal", 6, 3, 7, 3),
    Sketcher.Constraint("Horizontal", 7, 3, 8, 3),
    Sketcher.Constraint("Horizontal", 5, 3, 9, 3),
    Sketcher.Constraint("Horizontal", 9, 3, 10, 3),
    Sketcher.Constraint("Horizontal", 10, 3, 11, 3),
    Sketcher.Constraint("Vertical", 0, 3, 1, 3),
    Sketcher.Constraint("Vertical", 3, 3, 4, 3),
    Sketcher.Constraint("Vertical", 2, 3, 5, 3),
    Sketcher.Constraint("Vertical", 8, 3, 9, 3),
    Sketcher.Constraint("Vertical", 7, 3, 10, 3),
    Sketcher.Constraint("Vertical", 6, 3, 11, 3),
    Sketcher.Constraint("Diameter", 0, Q("5 mm")),
    Sketcher.Constraint("DistanceX", 2, 3, -1, 1, Q("154 mm")),
    Sketcher.Constraint("DistanceX", -1, 1, 7, 3, Q("4 mm")),
    Sketcher.Constraint("DistanceY", 0, 3, 1, 3, Q("24 mm")),
    Sketcher.Constraint("DistanceX", 1, 3, 3, 3, Q("45 mm")),
    Sketcher.Constraint("DistanceX", 3, 3, 6, 3, Q("113 mm")),
    Sketcher.Constraint("DistanceX", 6, 3, 8, 3, Q("45 mm")),
    Sketcher.Constraint("DistanceX", 0, 3, -1, 1, Q("176.5 mm")),
    Sketcher.Constraint("DistanceY", 0, 3, -1, 1, Q("85.056672 mm")),
])
doc.recompute()
hole2 = body.newObject("PartDesign::Hole", "Hole001")
hole2.Profile = sketch5
hole2.ThreadType = "None"
hole2.Diameter = 5
hole2.DepthType = "ThroughAll"

doc.recompute()
